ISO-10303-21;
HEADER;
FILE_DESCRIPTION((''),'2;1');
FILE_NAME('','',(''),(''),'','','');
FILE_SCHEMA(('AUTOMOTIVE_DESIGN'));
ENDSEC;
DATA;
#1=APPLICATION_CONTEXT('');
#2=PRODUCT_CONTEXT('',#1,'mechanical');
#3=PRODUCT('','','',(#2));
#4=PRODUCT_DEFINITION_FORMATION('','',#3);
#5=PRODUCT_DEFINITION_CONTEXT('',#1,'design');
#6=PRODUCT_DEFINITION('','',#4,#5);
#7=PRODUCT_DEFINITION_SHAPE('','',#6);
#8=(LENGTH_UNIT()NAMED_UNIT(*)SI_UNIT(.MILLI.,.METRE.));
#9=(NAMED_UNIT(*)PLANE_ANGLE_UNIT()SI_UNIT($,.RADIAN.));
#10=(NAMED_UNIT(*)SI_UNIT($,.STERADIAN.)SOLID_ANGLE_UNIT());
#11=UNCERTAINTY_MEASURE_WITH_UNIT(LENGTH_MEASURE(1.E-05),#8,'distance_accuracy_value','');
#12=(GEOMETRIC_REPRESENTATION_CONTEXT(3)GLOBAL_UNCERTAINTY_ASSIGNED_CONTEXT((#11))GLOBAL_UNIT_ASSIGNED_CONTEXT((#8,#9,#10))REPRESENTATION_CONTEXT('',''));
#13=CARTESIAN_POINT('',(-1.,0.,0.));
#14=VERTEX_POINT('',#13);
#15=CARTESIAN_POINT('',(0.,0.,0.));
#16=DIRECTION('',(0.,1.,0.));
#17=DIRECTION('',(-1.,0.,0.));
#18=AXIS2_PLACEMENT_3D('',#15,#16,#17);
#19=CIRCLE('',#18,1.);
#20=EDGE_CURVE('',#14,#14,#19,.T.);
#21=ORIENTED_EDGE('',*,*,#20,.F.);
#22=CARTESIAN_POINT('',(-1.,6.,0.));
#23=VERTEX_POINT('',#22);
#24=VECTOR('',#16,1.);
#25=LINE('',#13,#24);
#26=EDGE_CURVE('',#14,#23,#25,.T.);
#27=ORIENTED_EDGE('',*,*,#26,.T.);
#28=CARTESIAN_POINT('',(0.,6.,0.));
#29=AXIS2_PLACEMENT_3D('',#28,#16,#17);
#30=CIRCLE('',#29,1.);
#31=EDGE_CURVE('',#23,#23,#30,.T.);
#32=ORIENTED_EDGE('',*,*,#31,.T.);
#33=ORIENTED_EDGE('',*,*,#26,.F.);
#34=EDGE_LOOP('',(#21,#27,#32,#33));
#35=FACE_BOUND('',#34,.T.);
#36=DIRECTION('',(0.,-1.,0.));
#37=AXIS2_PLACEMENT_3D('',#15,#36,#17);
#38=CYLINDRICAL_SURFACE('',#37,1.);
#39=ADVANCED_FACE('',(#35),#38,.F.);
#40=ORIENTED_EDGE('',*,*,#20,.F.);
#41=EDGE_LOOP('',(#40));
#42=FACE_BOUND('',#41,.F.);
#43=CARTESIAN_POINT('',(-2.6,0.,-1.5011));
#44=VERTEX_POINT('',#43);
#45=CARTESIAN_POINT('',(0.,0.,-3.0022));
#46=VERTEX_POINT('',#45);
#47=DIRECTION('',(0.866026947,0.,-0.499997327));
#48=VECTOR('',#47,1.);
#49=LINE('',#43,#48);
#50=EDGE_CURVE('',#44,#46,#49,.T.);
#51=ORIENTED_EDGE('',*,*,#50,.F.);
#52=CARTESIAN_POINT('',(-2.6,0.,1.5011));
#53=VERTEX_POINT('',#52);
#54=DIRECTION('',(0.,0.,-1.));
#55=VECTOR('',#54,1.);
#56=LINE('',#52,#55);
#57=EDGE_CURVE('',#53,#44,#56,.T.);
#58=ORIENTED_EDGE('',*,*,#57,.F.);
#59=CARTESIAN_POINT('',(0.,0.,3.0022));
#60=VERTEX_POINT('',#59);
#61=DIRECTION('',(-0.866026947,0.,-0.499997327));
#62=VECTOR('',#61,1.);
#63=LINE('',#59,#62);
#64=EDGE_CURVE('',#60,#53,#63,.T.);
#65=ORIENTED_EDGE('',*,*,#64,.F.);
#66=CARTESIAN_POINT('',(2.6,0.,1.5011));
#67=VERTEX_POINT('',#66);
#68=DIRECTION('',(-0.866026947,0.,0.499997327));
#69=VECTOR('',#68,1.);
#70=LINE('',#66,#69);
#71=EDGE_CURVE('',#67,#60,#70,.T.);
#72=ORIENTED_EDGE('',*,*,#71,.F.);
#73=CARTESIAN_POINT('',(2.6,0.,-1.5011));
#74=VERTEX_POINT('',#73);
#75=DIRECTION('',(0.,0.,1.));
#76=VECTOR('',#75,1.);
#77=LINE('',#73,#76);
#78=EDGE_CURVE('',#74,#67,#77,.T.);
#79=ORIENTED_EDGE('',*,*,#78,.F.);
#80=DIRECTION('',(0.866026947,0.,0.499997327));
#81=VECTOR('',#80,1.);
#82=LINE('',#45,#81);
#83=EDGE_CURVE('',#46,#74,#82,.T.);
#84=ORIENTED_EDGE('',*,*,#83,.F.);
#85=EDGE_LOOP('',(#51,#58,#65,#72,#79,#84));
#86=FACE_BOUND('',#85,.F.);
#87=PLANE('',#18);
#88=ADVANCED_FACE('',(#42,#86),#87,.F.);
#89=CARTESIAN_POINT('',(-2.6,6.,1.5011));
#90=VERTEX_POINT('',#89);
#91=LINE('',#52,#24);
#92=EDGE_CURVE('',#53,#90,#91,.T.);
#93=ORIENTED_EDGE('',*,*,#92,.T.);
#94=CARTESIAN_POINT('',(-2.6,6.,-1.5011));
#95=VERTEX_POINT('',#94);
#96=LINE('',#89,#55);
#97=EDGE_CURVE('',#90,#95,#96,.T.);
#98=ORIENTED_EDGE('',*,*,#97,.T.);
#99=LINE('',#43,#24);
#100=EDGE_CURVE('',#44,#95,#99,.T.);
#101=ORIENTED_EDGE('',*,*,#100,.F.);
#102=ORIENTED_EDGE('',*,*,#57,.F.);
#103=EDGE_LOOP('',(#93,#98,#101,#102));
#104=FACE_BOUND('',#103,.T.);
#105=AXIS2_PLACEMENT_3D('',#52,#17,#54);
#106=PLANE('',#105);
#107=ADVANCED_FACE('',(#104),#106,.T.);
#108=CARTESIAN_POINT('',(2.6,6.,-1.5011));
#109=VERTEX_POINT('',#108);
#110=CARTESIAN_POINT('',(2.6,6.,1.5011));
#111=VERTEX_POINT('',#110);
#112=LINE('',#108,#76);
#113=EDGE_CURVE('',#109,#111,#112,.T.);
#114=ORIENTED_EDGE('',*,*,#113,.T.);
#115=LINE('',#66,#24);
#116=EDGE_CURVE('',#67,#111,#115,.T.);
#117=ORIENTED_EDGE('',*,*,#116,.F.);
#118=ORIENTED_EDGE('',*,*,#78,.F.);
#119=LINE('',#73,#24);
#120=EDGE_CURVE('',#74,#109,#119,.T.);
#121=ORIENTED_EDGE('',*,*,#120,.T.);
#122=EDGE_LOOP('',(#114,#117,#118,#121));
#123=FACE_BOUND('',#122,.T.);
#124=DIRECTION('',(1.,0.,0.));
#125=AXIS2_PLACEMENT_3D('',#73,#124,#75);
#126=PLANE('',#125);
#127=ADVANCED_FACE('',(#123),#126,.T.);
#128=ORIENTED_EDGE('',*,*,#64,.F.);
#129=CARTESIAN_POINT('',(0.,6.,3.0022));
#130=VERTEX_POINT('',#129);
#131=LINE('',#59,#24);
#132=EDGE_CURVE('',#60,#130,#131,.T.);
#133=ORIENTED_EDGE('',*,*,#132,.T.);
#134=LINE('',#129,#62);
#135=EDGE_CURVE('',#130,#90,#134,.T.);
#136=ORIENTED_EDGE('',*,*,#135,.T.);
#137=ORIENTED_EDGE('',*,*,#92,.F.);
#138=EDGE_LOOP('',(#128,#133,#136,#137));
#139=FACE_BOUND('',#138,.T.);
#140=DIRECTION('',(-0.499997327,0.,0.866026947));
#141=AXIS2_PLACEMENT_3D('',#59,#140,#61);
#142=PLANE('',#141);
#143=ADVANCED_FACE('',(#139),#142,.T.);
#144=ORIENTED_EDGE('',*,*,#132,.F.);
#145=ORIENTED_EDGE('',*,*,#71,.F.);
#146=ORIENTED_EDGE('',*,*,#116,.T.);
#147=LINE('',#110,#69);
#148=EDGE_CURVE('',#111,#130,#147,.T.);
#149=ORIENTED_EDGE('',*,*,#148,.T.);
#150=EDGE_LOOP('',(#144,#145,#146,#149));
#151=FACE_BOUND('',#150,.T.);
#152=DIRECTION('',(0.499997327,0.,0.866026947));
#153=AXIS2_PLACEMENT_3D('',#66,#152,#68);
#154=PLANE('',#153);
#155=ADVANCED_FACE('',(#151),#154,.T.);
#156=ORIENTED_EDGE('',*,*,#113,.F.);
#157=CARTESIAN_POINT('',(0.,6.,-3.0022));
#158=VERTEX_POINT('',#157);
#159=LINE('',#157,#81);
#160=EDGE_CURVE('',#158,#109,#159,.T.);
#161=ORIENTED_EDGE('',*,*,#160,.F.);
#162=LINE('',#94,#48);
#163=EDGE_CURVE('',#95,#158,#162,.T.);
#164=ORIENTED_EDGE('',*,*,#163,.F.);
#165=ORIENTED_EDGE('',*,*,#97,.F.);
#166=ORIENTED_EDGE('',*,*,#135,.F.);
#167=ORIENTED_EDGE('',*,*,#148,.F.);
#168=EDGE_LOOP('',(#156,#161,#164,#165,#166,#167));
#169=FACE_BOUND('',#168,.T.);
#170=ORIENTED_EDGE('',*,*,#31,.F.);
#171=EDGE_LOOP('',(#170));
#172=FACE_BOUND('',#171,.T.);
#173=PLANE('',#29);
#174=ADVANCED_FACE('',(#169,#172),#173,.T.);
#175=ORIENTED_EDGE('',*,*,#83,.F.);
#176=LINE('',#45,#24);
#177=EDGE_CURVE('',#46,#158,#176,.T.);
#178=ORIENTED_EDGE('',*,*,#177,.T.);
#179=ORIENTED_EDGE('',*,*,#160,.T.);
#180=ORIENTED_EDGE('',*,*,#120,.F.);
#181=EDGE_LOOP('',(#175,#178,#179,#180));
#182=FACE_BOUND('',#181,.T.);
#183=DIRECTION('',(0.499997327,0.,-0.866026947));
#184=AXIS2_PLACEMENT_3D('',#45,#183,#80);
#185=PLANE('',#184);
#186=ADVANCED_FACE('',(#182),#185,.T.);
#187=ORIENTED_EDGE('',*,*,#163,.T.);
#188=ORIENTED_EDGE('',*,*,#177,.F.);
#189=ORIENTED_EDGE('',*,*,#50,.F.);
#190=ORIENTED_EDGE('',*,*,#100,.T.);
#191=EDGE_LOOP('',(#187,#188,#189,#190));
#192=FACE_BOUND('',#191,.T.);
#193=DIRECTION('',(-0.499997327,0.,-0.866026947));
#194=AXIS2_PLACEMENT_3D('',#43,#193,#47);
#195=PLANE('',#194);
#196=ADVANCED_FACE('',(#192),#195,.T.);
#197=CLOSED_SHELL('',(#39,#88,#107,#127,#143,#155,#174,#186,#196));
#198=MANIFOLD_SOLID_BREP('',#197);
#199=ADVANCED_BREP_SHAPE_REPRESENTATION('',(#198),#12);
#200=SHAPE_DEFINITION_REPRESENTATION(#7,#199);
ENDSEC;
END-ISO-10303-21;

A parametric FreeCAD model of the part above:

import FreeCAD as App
import Part
import Sketcher

V = App.Vector
Q = App.Units.Quantity


def add_polygon(sketch, points):
    """Adds a closed chain of lines whose ends are joined by coincident constraints."""
    first, n = sketch.GeometryCount, len(points)
    for a, b in zip(points, points[1:] + points[:1]):
        sketch.addGeometry(Part.LineSegment(App.Vector(*a, 0), App.Vector(*b, 0)), False)
    for i in range(n):
        sketch.addConstraint(Sketcher.Constraint("Coincident", first + i, 2, first + (i + 1) % n, 1))

doc = App.newDocument("Part")
params = doc.addObject("Spreadsheet::Sheet", "Params")
for row, (alias, value) in enumerate([
    ("sketch1_diameter", "2 mm"),
    ("pad1_length", "6 mm"),
], start=1):
    params.set(f"A{row}", alias)
    params.set(f"B{row}", "=" + value)
    params.setAlias(f"B{row}", alias)

body = doc.addObject("PartDesign::Body", "Body")

# Sketch on XZ plane
sketch1 = body.newObject("Sketcher::SketchObject", "Sketch")
sketch1.AttachmentSupport = (doc.getObject("XZ_Plane"), [""])
sketch1.MapMode = "FlatFace"
add_polygon(sketch1, [(2.6, -1.5), (0, -3), (-2.6, -1.5), (-2.6, 1.5), (0, 3), (2.6, 1.5)])  # lines 0-5
sketch1.addGeometry(Part.Circle(V(0, 0, 0), V(0, 0, 1), 1), False)  # 6
sketch1.addConstraint(Sketcher.Constraint("Vertical", 2))
sketch1.addConstraint(Sketcher.Constraint("Vertical", 5))
sketch1.addConstraint(Sketcher.Constraint("Coincident", 6, 3, -1, 1))
sketch1.addConstraint(Sketcher.Constraint("Symmetric", 0, 2, 3, 2, -1, 1))
sketch1.addConstraint(Sketcher.Constraint("Symmetric", 1, 2, 4, 2, -1, 1))
sketch1.addConstraint(Sketcher.Constraint("PointOnObject", 0, 2, -2))
sketch1.addConstraint(Sketcher.Constraint("Parallel", 0, 3))
sketch1.addConstraint(Sketcher.Constraint("Horizontal", 2, 2, 4, 2))
sketch1.addConstraint(Sketcher.Constraint("Diameter", 6, Q("2 mm")))
sketch1.addConstraint(Sketcher.Constraint("DistanceX", 2, 2, 4, 2, Q("5.2 mm")))
sketch1.addConstraint(Sketcher.Constraint("Angle", 0, Q("-150.0002 deg")))
sketch1.addConstraint(Sketcher.Constraint("DistanceY", 2, 1, 2, 2, Q("3.0022 mm")))
sketch1.setExpression("Constraints[14]", "Params.sketch1_diameter")
pad1 = body.newObject("PartDesign::Pad", "Pad")
pad1.Profile = sketch1
pad1.setExpression("Length", "Params.pad1_length")
pad1.Reversed = True

doc.recompute()
